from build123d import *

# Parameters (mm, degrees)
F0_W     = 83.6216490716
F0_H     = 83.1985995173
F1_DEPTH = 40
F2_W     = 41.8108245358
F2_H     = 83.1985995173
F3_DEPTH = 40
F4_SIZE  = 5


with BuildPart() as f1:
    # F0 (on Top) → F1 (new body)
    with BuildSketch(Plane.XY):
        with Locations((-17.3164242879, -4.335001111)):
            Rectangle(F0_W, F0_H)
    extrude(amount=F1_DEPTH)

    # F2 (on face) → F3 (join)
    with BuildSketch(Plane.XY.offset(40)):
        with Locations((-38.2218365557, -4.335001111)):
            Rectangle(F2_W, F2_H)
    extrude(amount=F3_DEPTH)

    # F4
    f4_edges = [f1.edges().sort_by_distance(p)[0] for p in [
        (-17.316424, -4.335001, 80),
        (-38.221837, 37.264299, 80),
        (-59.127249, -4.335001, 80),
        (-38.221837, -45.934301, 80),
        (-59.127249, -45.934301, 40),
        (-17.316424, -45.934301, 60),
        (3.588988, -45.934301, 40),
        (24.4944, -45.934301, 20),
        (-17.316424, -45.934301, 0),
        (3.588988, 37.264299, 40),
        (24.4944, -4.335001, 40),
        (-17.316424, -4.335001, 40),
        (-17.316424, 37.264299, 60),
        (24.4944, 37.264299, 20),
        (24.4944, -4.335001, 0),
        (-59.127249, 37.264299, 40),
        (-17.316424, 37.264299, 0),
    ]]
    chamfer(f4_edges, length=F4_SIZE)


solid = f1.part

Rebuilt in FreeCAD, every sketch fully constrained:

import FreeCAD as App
import Part
import Sketcher
from FreeCAD import Vector


def edges_at(feature, points):
    """Names of the edges that pass closest to the given points."""
    edges = feature.Shape.Edges
    near = lambda p: min(range(len(edges)), key=lambda i: edges[i].distToShape(Part.Vertex(*p))[0])
    return sorted({f"Edge{near(p) + 1}" for p in points})

doc = App.newDocument("Part")
body = doc.addObject("PartDesign::Body", "Body")

sketch1 = body.newObject("Sketcher::SketchObject", "Sketch")
sketch1.AttachmentSupport = (doc.getObject("XY_Plane"), [""])
sketch1.MapMode = "FlatFace"
sketch1.addGeometry([
    Part.LineSegment(Vector(-59, 37, 0), Vector(-59, -46, 0)),
    Part.LineSegment(Vector(-59, -46, 0), Vector(24, -46, 0)),
    Part.LineSegment(Vector(24, -46, 0), Vector(24, 37, 0)),
    Part.LineSegment(Vector(24, 37, 0), Vector(-59, 37, 0)),
], False)
sketch1.addConstraint([
    Sketcher.Constraint("Coincident", 0, 2, 1, 1),
    Sketcher.Constraint("Coincident", 1, 2, 2, 1),
    Sketcher.Constraint("Coincident", 2, 2, 3, 1),
    Sketcher.Constraint("Coincident", 3, 2, 0, 1),
    Sketcher.Constraint("Vertical", 0),
    Sketcher.Constraint("Horizontal", 1),
    Sketcher.Constraint("Vertical", 2),
    Sketcher.Constraint("Horizontal", 3),
    Sketcher.Constraint("DistanceY", 0, 2, 0, 1, 83.1986),
    Sketcher.Constraint("DistanceX", 1, 1, 1, 2, 83.621649),
    Sketcher.Constraint("DistanceY", 0, 2, -1, 1, 45.934301),
    Sketcher.Constraint("DistanceX", -1, 1, 1, 2, 24.4944),
])
pad1 = body.newObject("PartDesign::Pad", "Pad")
pad1.Profile = sketch1
pad1.Length = 40

sketch2 = body.newObject("Sketcher::SketchObject", "Sketch001")
sketch2.AttachmentSupport = (doc.getObject("XY_Plane"), [""])
sketch2.MapMode = "FlatFace"
sketch2.AttachmentOffset = App.Placement(Vector(0, 0, 40), App.Rotation())
sketch2.addGeometry([
    Part.LineSegment(Vector(-59, 37, 0), Vector(-59, -46, 0)),
    Part.LineSegment(Vector(-59, -46, 0), Vector(-17, -46, 0)),
    Part.LineSegment(Vector(-17, -46, 0), Vector(-17, 37, 0)),
    Part.LineSegment(Vector(-17, 37, 0), Vector(-59, 37, 0)),
], False)
sketch2.addConstraint([
    Sketcher.Constraint("Coincident", 0, 2, 1, 1),
    Sketcher.Constraint("Coincident", 1, 2, 2, 1),
    Sketcher.Constraint("Coincident", 2, 2, 3, 1),
    Sketcher.Constraint("Coincident", 3, 2, 0, 1),
    Sketcher.Constraint("Vertical", 0),
    Sketcher.Constraint("Horizontal", 1),
    Sketcher.Constraint("Vertical", 2),
    Sketcher.Constraint("Horizontal", 3),
    Sketcher.Constraint("DistanceY", 0, 2, 0, 1, 83.1986),
    Sketcher.Constraint("DistanceY", 0, 2, -1, 1, 45.934301),
    Sketcher.Constraint("DistanceX", 1, 1, 1, 2, 41.810825),
    Sketcher.Constraint("DistanceX", 0, 2, -1, 1, 59.127249),
])
pad2 = body.newObject("PartDesign::Pad", "Pad001")
pad2.Profile = sketch2
pad2.Length = 40
doc.recompute()

chamfer = body.newObject("PartDesign::Chamfer", "Chamfer")
chamfer.Base = (pad2, edges_at(pad2, [
    (-17.316, -4.335, 80),
    (-38.222, 37.264, 80),
    (-59.127, -4.335, 80),
    (-38.222, -45.934, 80),
    (-59.127, -45.934, 60),
    (-17.316, -45.934, 60),
    (3.589, -45.934, 40),
    (24.494, -45.934, 20),
    (-17.316, -45.934, 0),
    (3.589, 37.264, 40),
    (24.494, -4.335, 40),
    (-17.316, -4.335, 40),
    (-17.316, 37.264, 60),
    (24.494, 37.264, 20),
    (24.494, -4.335, 0),
    (-59.127, 37.264, 60),
    (-17.316, 37.264, 0),
]))
chamfer.Size = 5

doc.recompute()
